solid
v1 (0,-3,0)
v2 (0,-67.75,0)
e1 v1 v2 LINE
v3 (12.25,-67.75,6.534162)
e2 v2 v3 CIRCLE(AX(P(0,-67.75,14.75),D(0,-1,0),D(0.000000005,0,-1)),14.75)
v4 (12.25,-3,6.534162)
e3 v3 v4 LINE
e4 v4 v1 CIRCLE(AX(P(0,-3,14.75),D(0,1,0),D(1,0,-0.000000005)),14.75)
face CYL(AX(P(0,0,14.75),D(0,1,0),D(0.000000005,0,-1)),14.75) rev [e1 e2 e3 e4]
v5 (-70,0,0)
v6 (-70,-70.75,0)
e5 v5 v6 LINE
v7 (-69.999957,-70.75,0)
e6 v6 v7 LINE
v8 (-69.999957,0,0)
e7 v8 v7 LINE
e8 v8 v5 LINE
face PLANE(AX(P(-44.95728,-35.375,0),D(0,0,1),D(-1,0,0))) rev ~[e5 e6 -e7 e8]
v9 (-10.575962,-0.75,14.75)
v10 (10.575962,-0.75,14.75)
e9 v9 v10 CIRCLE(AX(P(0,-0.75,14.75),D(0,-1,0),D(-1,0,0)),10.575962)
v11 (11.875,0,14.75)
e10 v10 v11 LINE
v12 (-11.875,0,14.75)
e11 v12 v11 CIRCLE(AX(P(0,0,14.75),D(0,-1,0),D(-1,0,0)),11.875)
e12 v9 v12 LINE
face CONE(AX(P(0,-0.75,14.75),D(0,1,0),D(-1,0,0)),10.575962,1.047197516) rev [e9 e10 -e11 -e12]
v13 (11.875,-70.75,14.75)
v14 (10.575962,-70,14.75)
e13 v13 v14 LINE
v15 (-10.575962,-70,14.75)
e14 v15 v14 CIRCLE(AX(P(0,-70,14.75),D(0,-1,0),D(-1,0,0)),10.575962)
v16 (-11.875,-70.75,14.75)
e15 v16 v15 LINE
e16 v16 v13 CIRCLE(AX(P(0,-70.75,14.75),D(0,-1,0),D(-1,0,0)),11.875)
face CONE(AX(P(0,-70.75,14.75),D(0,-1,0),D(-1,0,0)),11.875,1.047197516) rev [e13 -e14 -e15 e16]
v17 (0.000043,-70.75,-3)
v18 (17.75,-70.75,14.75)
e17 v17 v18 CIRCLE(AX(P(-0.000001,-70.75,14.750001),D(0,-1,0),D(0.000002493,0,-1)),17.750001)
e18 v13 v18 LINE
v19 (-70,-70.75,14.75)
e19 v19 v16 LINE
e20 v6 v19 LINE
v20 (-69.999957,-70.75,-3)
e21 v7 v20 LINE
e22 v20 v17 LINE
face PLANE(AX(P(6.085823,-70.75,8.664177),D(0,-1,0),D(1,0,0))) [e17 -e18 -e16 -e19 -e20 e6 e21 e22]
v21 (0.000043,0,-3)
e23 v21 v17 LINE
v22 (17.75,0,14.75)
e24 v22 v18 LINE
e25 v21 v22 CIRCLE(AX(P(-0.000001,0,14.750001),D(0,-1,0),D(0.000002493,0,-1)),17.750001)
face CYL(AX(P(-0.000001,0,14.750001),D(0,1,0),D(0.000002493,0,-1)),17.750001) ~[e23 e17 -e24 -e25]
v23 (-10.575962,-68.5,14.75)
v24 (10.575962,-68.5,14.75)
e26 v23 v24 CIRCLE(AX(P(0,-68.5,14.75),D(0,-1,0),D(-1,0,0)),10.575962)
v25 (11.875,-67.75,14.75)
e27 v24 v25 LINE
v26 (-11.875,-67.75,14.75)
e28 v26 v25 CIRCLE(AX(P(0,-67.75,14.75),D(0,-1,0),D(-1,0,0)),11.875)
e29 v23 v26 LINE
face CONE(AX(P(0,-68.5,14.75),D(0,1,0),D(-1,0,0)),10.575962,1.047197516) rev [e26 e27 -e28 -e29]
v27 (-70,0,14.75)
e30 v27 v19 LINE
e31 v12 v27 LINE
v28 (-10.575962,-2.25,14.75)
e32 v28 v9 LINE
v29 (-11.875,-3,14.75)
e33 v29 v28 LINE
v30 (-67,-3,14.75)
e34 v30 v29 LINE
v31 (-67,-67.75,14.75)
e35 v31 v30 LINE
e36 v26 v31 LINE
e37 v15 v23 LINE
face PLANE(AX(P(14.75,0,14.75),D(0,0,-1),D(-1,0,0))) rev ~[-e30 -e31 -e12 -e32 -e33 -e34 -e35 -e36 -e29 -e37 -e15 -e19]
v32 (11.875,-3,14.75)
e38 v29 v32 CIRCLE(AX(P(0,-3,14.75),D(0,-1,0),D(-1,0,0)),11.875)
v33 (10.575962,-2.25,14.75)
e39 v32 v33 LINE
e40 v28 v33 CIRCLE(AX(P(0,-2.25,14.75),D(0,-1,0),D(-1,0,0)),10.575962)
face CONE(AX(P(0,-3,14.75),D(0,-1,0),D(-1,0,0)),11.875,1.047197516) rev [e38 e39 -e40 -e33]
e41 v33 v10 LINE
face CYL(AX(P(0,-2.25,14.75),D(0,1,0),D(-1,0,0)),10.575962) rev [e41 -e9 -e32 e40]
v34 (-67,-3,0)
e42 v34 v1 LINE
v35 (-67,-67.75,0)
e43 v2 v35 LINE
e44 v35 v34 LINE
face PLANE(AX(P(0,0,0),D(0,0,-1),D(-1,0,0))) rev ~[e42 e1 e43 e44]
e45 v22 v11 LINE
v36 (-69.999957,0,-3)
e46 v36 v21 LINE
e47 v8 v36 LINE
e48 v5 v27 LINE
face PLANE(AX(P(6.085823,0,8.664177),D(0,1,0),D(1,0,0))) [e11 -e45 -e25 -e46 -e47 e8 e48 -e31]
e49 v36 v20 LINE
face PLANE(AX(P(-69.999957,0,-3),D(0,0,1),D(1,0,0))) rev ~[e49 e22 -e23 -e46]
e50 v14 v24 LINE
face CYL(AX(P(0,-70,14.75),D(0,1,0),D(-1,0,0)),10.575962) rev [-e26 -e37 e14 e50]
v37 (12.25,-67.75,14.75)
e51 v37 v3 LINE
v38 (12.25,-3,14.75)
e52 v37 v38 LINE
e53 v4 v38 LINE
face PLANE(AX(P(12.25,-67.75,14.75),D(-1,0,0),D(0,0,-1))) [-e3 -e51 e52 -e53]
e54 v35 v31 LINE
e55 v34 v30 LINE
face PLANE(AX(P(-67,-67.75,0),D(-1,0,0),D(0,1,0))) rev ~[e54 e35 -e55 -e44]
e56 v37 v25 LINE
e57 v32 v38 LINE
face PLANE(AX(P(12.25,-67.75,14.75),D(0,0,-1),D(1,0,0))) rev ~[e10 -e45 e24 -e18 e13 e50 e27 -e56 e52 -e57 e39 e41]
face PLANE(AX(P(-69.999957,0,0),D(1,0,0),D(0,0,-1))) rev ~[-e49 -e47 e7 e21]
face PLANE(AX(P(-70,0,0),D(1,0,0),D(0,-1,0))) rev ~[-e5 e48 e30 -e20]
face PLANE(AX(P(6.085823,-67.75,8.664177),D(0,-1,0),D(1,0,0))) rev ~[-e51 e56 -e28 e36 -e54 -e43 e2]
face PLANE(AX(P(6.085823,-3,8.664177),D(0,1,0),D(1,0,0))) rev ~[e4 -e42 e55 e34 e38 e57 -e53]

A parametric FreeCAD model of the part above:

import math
import FreeCAD as App
import Part
import Sketcher

V = App.Vector
Q = App.Units.Quantity


def add_polygon(sketch, points):
    """Adds a closed chain of lines whose ends are joined by coincident constraints."""
    first, n = sketch.GeometryCount, len(points)
    for a, b in zip(points, points[1:] + points[:1]):
        sketch.addGeometry(Part.LineSegment(App.Vector(*a, 0), App.Vector(*b, 0)), False)
    for i in range(n):
        sketch.addConstraint(Sketcher.Constraint("Coincident", first + i, 2, first + (i + 1) % n, 1))

doc = App.newDocument("Part")
body = doc.addObject("PartDesign::Body", "Body")

# Sketch on XZ plane
sketch1 = body.newObject("Sketcher::SketchObject", "Sketch")
sketch1.AttachmentSupport = (doc.getObject("XZ_Plane"), [""])
sketch1.MapMode = "FlatFace"
sketch1.addGeometry([
    Part.ArcOfCircle(Part.Circle(V(0, 14.8, 0), V(0, 0, 1), 14.8), math.radians(-90), math.radians(0)),  # 0
    Part.LineSegment(V(0, 0, 0), V(-70, 0, 0)),  # 1
    Part.LineSegment(V(-70, 0, 0), V(-70, -3, 0)),  # 2
    Part.LineSegment(V(-70, -3, 0), V(0, -3, 0)),  # 3
    Part.ArcOfCircle(Part.Circle(V(0, 14.8, 0), V(0, 0, 1), 17.8), math.radians(-90), math.radians(0)),  # 4
    Part.LineSegment(V(17.8, 14.8, 0), V(14.8, 14.8, 0)),  # 5
], False)
sketch1.addConstraint([
    Sketcher.Constraint("Tangent", 0, 1, 1, 1),
    Sketcher.Constraint("Coincident", 1, 2, 2, 1),
    Sketcher.Constraint("Coincident", 2, 2, 3, 1),
    Sketcher.Constraint("Coincident", 3, 2, 4, 1),
    Sketcher.Constraint("Coincident", 4, 2, 5, 1),
    Sketcher.Constraint("Coincident", 5, 2, 0, 2),
    Sketcher.Constraint("Horizontal", 1),
    Sketcher.Constraint("Vertical", 2),
    Sketcher.Constraint("Horizontal", 3),
    Sketcher.Constraint("Horizontal", 5),
    Sketcher.Constraint("Coincident", 0, 1, -1, 1),
    Sketcher.Constraint("Coincident", 4, 3, 0, 3),
    Sketcher.Constraint("Horizontal", 0, 3, 4, 2),
    Sketcher.Constraint("DistanceX", 3, 1, 3, 2, 70.0),
    Sketcher.Constraint("DistanceX", 5, 2, 5, 1, 3.0),
    Sketcher.Constraint("Radius", 0, 14.75),
    Sketcher.Constraint("DistanceX", 1, 2, 1, 1, 69.999957),
])
pad1 = body.newObject("PartDesign::Pad", "Pad")
pad1.Profile = sketch1
pad1.Length = 70.75

# Sketch on XY plane
sketch2 = body.newObject("Sketcher::SketchObject", "Sketch001")
sketch2.AttachmentSupport = (doc.getObject("XY_Plane"), [""])
sketch2.MapMode = "FlatFace"
add_polygon(sketch2, [(-70, 0), (-70, -70.8), (0, -70.8), (0, -67.8), (-67, -67.8), (-67, -3), (0, -3), (0, 0)])  # lines 0-7
sketch2.addConstraint([
    Sketcher.Constraint("Vertical", 0),
    Sketcher.Constraint("Horizontal", 1),
    Sketcher.Constraint("Vertical", 2),
    Sketcher.Constraint("Horizontal", 3),
    Sketcher.Constraint("Vertical", 4),
    Sketcher.Constraint("Horizontal", 5),
    Sketcher.Constraint("Vertical", 6),
    Sketcher.Constraint("Horizontal", 7),
    Sketcher.Constraint("Coincident", 6, 2, -1, 1),
    Sketcher.Constraint("PointOnObject", 1, 2, -2),
    Sketcher.Constraint("Equal", 2, 6),
    Sketcher.Constraint("DistanceX", 1, 1, 1, 2, 70.0),
    Sketcher.Constraint("DistanceX", 3, 2, 3, 1, 67.0),
    Sketcher.Constraint("DistanceY", 2, 1, 2, 2, 3.0),
    Sketcher.Constraint("DistanceY", 0, 2, 0, 1, 70.75),
])
pad2 = body.newObject("PartDesign::Pad", "Pad001")
pad2.Profile = sketch2
pad2.Length = 14.75

# Sketch on XZ plane
sketch3 = body.newObject("Sketcher::SketchObject", "Sketch002")
sketch3.AttachmentSupport = (doc.getObject("XZ_Plane"), [""])
sketch3.MapMode = "FlatFace"
sketch3.AttachmentOffset = App.Placement(V(0, 0, 70.75), App.Rotation())
sketch3.addGeometry([
    Part.ArcOfCircle(Part.Circle(V(0, 15, 0), V(0, 0, 1), 15), math.radians(-90), math.radians(0)),
    Part.LineSegment(V(15, 15, 0), V(0, 15, 0)),
    Part.LineSegment(V(0, 15, 0), V(0, 0, 0)),
], False)
sketch3.addConstraint([
    Sketcher.Constraint("Coincident", 0, 2, 1, 1),
    Sketcher.Constraint("Coincident", 1, 2, 2, 1),
    Sketcher.Constraint("Coincident", 2, 2, 0, 1),
    Sketcher.Constraint("Horizontal", 1),
    Sketcher.Constraint("Vertical", 2),
    Sketcher.Constraint("Coincident", 2, 2, -1, 1),
    Sketcher.Constraint("Coincident", 1, 2, 0, 3),
    Sketcher.Constraint("Radius", 0, 14.75),
])
pad3 = body.newObject("PartDesign::Pad", "Pad002")
pad3.Profile = sketch3
pad3.Length = 3
pad3.Reversed = True

# Sketch on XZ plane
sketch4 = body.newObject("Sketcher::SketchObject", "Sketch003")
sketch4.AttachmentSupport = (doc.getObject("XZ_Plane"), [""])
sketch4.MapMode = "FlatFace"
sketch4.addGeometry([
    Part.ArcOfCircle(Part.Circle(V(0, 15, 0), V(0, 0, 1), 15), math.radians(-90), math.radians(0)),
    Part.LineSegment(V(0, 0, 0), V(0, 15, 0)),
    Part.LineSegment(V(0, 15, 0), V(15, 15, 0)),
], False)
sketch4.addConstraint([
    Sketcher.Constraint("Coincident", 0, 1, 1, 1),
    Sketcher.Constraint("Coincident", 1, 2, 2, 1),
    Sketcher.Constraint("Coincident", 2, 2, 0, 2),
    Sketcher.Constraint("Vertical", 1),
    Sketcher.Constraint("Horizontal", 2),
    Sketcher.Constraint("Coincident", 0, 1, -1, 1),
    Sketcher.Constraint("Coincident", 1, 2, 0, 3),
    Sketcher.Constraint("Radius", 0, 14.75),
])
pad4 = body.newObject("PartDesign::Pad", "Pad003")
pad4.Profile = sketch4
pad4.Length = 3

# Sketch on XZ plane
sketch5 = body.newObject("Sketcher::SketchObject", "Sketch004")
sketch5.AttachmentSupport = (doc.getObject("XZ_Plane"), [""])
sketch5.MapMode = "FlatFace"
sketch5.AttachmentOffset = App.Placement(V(0, 0, 70.75), App.Rotation())
sketch5.addGeometry([
    Part.ArcOfCircle(Part.Circle(V(0, 15, 0), V(0, 0, 1), 12), math.radians(180), math.radians(360)),
    Part.LineSegment(V(12, 15, 0), V(-12, 15, 0)),
], False)
sketch5.addConstraint([
    Sketcher.Constraint("Coincident", 0, 1, 1, 2),
    Sketcher.Constraint("Coincident", 1, 1, 0, 2),
    Sketcher.Constraint("Horizontal", 1),
    Sketcher.Constraint("PointOnObject", 0, 3, -2),
    Sketcher.Constraint("Radius", 0, 11.875),
    Sketcher.Constraint("DistanceY", -1, 1, 0, 3, 14.75),
    Sketcher.Constraint("DistanceY", -1, 1, 0, 1, 14.75),
])
pocket1 = body.newObject("PartDesign::Pocket", "Pocket")
pocket1.Profile = sketch5
pocket1.Type = "ThroughAll"

# Sketch on XY plane
sketch6 = body.newObject("Sketcher::SketchObject", "Sketch005")
sketch6.AttachmentSupport = (doc.getObject("XY_Plane"), [""])
sketch6.MapMode = "FlatFace"
sketch6.AttachmentOffset = App.Placement(V(0, 0, 14.75), App.Rotation())
add_polygon(sketch6, [(-13.2, -70), (-11.9, -70.8), (-10.6, -70), (-10.6, -68.5), (-11.9, -67.8), (-13.2, -68.5)])  # lines 0-5
add_polygon(sketch6, [(-13.2, -2.2), (-11.9, -3), (-10.6, -2.2), (-10.6, -0.8), (-11.9, 0), (-13.2, -0.8)])  # lines 6-11
sketch6.addConstraint([
    Sketcher.Constraint("Vertical", 2),
    Sketcher.Constraint("Vertical", 5),
    Sketcher.Constraint("Vertical", 8),
    Sketcher.Constraint("Vertical", 11),
    Sketcher.Constraint("PointOnObject", 9, 2, -1),
    Sketcher.Constraint("Parallel", 0, 3),
    Sketcher.Constraint("Parallel", 1, 4),
    Sketcher.Constraint("Parallel", 3, 6),
    Sketcher.Constraint("Parallel", 4, 7),
    Sketcher.Constraint("Parallel", 6, 9),
    Sketcher.Constraint("Parallel", 7, 10),
    Sketcher.Constraint("Horizontal", 2, 2, 4, 2),
    Sketcher.Constraint("Horizontal", 1, 2, 5, 2),
    Sketcher.Constraint("Horizontal", 8, 2, 10, 2),
    Sketcher.Constraint("Horizontal", 7, 2, 11, 2),
    Sketcher.Constraint("Vertical", 0, 2, 3, 2),
    Sketcher.Constraint("Vertical", 3, 2, 6, 2),
    Sketcher.Constraint("Vertical", 2, 2, 7, 2),
    Sketcher.Constraint("Equal", 5, 8),
    Sketcher.Constraint("Angle", 0, Q("-30.000002 deg")),
    Sketcher.Constraint("DistanceY", 2, 1, 2, 2, 1.5),
    Sketcher.Constraint("DistanceY", 1, 2, -1, 1, 70.0),
    Sketcher.Constraint("DistanceY", 6, 2, -1, 1, 3.0),
    Sketcher.Constraint("DistanceX", 0, 2, -1, 1, 11.875),
])
revolution = body.newObject("PartDesign::Revolution", "Revolution")
revolution.Profile = sketch6
revolution.ReferenceAxis = (sketch6, ["V_Axis"])
revolution.Angle = 180
revolution.Reversed = True

# Sketch on XZ plane
sketch7 = body.newObject("Sketcher::SketchObject", "Sketch006")
sketch7.AttachmentSupport = (doc.getObject("XZ_Plane"), [""])
sketch7.MapMode = "FlatFace"
sketch7.AttachmentOffset = App.Placement(V(0, 0, 67.75), App.Rotation())
add_polygon(sketch7, [(12.2, 6), (12.2, 14.8), (14.8, 14.8), (14.8, 6)])  # lines 0-3
sketch7.addConstraint([
    Sketcher.Constraint("Vertical", 0),
    Sketcher.Constraint("Horizontal", 1),
    Sketcher.Constraint("Vertical", 2),
    Sketcher.Constraint("Horizontal", 3),
    Sketcher.Constraint("DistanceX", 1, 1, 1, 2, 2.5),
    Sketcher.Constraint("DistanceY", -1, 1, 2, 2, 6.0),
    Sketcher.Constraint("DistanceY", 0, 1, 0, 2, 8.75),
    Sketcher.Constraint("DistanceX", -1, 1, 0, 2, 12.25),
])
pad5 = body.newObject("PartDesign::Pad", "Pad004")
pad5.Profile = sketch7
pad5.Length = 67.75
pad5.Reversed = True

doc.recompute()
